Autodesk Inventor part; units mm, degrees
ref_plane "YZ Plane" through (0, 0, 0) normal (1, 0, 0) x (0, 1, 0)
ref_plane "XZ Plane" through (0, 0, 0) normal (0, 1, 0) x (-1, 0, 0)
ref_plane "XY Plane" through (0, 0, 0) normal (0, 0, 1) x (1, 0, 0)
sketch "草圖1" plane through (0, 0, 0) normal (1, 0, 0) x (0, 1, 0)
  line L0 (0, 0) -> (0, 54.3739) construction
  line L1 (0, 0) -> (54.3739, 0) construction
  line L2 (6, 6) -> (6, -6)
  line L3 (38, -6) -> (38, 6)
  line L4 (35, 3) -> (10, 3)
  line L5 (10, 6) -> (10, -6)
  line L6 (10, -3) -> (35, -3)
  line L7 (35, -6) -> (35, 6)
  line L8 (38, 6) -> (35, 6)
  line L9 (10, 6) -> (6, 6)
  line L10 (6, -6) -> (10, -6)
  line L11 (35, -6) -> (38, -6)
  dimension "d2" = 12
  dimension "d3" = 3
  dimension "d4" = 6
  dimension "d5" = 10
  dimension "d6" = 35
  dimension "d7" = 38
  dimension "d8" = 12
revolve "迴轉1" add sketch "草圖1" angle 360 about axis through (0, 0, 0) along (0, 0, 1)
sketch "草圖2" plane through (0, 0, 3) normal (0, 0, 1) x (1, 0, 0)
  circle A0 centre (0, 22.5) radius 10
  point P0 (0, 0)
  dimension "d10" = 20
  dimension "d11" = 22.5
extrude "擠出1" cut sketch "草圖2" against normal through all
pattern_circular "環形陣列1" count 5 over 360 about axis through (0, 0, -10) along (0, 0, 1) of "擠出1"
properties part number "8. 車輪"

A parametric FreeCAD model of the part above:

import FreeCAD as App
import Part
import Sketcher

V = App.Vector
Q = App.Units.Quantity

doc = App.newDocument("Part")
body = doc.addObject("PartDesign::Body", "Body")

sketch1 = body.newObject("Sketcher::SketchObject", "Sketch")
sketch1.AttachmentSupport = (doc.getObject("YZ_Plane"), [""])
sketch1.MapMode = "FlatFace"
sketch1.addGeometry([
    Part.LineSegment(V(10, 6, 0), V(6, 6, 0)),
    Part.LineSegment(V(6, 6, 0), V(6, -6, 0)),
    Part.LineSegment(V(6, -6, 0), V(10, -6, 0)),
    Part.LineSegment(V(10, -6, 0), V(10, -3, 0)),
    Part.LineSegment(V(10, -3, 0), V(35, -3, 0)),
    Part.LineSegment(V(35, -3, 0), V(35, -6, 0)),
    Part.LineSegment(V(35, -6, 0), V(38, -6, 0)),
    Part.LineSegment(V(38, -6, 0), V(38, 6, 0)),
    Part.LineSegment(V(38, 6, 0), V(35, 6, 0)),
    Part.LineSegment(V(35, 6, 0), V(35, 3, 0)),
    Part.LineSegment(V(35, 3, 0), V(10, 3, 0)),
    Part.LineSegment(V(10, 3, 0), V(10, 6, 0)),
], False)
sketch1.addConstraint([
    Sketcher.Constraint("Coincident", 0, 2, 1, 1),
    Sketcher.Constraint("Coincident", 1, 2, 2, 1),
    Sketcher.Constraint("Coincident", 2, 2, 3, 1),
    Sketcher.Constraint("Coincident", 3, 2, 4, 1),
    Sketcher.Constraint("Coincident", 4, 2, 5, 1),
    Sketcher.Constraint("Coincident", 5, 2, 6, 1),
    Sketcher.Constraint("Coincident", 6, 2, 7, 1),
    Sketcher.Constraint("Coincident", 7, 2, 8, 1),
    Sketcher.Constraint("Coincident", 8, 2, 9, 1),
    Sketcher.Constraint("Coincident", 9, 2, 10, 1),
    Sketcher.Constraint("Coincident", 10, 2, 11, 1),
    Sketcher.Constraint("Coincident", 11, 2, 0, 1),
    Sketcher.Constraint("Horizontal", 0),
    Sketcher.Constraint("Vertical", 1),
    Sketcher.Constraint("Horizontal", 2),
    Sketcher.Constraint("Vertical", 3),
    Sketcher.Constraint("Horizontal", 4),
    Sketcher.Constraint("Vertical", 5),
    Sketcher.Constraint("Horizontal", 6),
    Sketcher.Constraint("Vertical", 7),
    Sketcher.Constraint("Horizontal", 8),
    Sketcher.Constraint("Vertical", 9),
    Sketcher.Constraint("Horizontal", 10),
    Sketcher.Constraint("Vertical", 11),
    Sketcher.Constraint("Symmetric", 5, 2, 8, 2, -1),
    Sketcher.Constraint("Symmetric", 3, 2, 10, 2, -1),
    Sketcher.Constraint("Horizontal", 2, 2, 5, 2),
    Sketcher.Constraint("Horizontal", 0, 2, 7, 2),
    Sketcher.Constraint("Equal", 8, 3),
    Sketcher.Constraint("DistanceX", 6, 1, 6, 2, Q("3 mm")),
    Sketcher.Constraint("DistanceY", 1, 2, 1, 1, Q("12 mm")),
    Sketcher.Constraint("DistanceX", -1, 1, 0, 2, Q("6 mm")),
    Sketcher.Constraint("DistanceX", -1, 1, 2, 2, Q("10 mm")),
    Sketcher.Constraint("DistanceX", -1, 1, 4, 2, Q("35 mm")),
])
revolution = body.newObject("PartDesign::Revolution", "Revolution")
revolution.Profile = sketch1
revolution.ReferenceAxis = (sketch1, ["V_Axis"])
revolution.Angle = 360

sketch2 = body.newObject("Sketcher::SketchObject", "Sketch001")
sketch2.AttachmentSupport = (doc.getObject("XY_Plane"), [""])
sketch2.MapMode = "FlatFace"
sketch2.AttachmentOffset = App.Placement(V(0, 0, 3), App.Rotation())
sketch2.addGeometry(Part.Circle(V(0, 22, 0), V(0, 0, 1), 10), False)
sketch2.addConstraint([
    Sketcher.Constraint("PointOnObject", 0, 3, -2),
    Sketcher.Constraint("Diameter", 0, Q("20 mm")),
    Sketcher.Constraint("DistanceY", -1, 1, 0, 3, Q("22.5 mm")),
])
pocket1 = body.newObject("PartDesign::Pocket", "Pocket")
pocket1.Profile = sketch2
pocket1.Type = "ThroughAll"
doc.recompute()

polarpattern = body.newObject("PartDesign::PolarPattern", "PolarPattern")
polarpattern.Originals = [pocket1]
polarpattern.Axis = (doc.getObject("Z_Axis"), [""])
polarpattern.Angle = 360
polarpattern.Occurrences = 5
body.Tip = polarpattern

doc.recompute()
